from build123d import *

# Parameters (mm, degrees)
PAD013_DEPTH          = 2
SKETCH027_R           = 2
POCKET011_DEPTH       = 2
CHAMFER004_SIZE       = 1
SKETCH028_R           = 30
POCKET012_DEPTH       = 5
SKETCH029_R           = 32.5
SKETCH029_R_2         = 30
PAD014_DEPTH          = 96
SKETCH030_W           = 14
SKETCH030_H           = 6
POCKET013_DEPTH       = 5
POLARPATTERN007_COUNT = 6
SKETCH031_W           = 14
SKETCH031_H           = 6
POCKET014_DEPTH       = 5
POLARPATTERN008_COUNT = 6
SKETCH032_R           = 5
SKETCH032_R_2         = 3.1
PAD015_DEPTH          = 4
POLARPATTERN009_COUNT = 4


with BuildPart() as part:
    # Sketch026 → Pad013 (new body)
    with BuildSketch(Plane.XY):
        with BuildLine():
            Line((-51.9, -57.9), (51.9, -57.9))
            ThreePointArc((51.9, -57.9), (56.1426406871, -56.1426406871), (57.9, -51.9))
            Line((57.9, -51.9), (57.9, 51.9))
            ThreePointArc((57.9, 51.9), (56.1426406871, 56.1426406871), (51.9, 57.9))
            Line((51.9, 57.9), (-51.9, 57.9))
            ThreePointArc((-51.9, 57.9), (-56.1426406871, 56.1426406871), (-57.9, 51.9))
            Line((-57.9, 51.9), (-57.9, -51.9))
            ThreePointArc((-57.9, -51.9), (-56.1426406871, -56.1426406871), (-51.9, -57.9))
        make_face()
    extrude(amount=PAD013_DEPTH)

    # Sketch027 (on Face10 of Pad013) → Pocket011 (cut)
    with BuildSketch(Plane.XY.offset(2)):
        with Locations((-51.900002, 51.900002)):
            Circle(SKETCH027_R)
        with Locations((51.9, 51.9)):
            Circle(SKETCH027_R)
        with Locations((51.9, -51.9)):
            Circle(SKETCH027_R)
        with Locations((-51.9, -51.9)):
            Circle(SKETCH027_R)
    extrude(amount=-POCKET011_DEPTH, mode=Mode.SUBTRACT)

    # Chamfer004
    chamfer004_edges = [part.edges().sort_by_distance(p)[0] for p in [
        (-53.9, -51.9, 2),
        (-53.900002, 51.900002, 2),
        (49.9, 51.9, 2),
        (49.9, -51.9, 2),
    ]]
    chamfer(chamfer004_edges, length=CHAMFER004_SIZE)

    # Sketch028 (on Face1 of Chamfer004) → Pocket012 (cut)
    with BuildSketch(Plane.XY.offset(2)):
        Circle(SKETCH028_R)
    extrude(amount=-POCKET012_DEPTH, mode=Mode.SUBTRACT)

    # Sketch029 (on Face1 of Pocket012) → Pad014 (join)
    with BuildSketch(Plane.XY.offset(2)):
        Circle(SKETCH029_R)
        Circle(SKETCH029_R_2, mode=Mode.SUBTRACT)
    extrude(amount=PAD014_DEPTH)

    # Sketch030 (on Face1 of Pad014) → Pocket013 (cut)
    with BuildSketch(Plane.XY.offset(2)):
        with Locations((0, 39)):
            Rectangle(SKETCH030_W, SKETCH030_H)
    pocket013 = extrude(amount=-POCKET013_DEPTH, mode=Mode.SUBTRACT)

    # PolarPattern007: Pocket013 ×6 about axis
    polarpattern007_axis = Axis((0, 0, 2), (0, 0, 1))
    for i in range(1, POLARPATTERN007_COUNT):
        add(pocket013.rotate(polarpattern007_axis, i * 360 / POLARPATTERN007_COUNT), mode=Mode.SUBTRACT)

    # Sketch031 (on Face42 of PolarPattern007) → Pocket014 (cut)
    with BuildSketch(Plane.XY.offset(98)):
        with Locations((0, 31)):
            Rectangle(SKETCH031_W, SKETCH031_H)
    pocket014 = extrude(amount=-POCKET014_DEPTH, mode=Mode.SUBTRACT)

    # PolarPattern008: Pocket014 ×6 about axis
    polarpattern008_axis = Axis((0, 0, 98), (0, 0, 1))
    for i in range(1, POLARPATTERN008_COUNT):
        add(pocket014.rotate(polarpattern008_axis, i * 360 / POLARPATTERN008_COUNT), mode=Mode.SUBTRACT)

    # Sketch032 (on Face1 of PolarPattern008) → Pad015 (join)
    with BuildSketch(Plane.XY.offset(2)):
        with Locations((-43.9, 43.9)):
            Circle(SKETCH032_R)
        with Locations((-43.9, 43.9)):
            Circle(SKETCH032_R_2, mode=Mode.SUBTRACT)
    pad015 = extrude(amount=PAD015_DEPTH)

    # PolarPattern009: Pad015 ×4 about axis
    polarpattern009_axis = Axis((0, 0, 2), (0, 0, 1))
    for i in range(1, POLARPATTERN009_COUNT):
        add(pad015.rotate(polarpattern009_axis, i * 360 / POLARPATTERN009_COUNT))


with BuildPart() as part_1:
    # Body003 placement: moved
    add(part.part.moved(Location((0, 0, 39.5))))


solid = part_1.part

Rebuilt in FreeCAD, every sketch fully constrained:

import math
import FreeCAD as App
import Part
import Sketcher


def edges_at(feature, points):
    """Names of the edges that pass closest to the given points."""
    edges = feature.Shape.Edges
    near = lambda p: min(range(len(edges)), key=lambda i: edges[i].distToShape(Part.Vertex(*p))[0])
    return sorted({f"Edge{near(p) + 1}" for p in points})


def add_polygon(sketch, points):
    """Adds a closed chain of lines whose ends are joined by coincident constraints."""
    first, n = sketch.GeometryCount, len(points)
    for a, b in zip(points, points[1:] + points[:1]):
        sketch.addGeometry(Part.LineSegment(App.Vector(*a, 0), App.Vector(*b, 0)), False)
    for i in range(n):
        sketch.addConstraint(Sketcher.Constraint("Coincident", first + i, 2, first + (i + 1) % n, 1))

doc = App.newDocument("Part")
params = doc.addObject("Spreadsheet::Sheet", "Params")
for row, (alias, value) in enumerate([
    ("sketch1_radius", "6 mm"),
    ("sketch1_width", "103.8 mm"),
    ("pad1_length", "2 mm"),
    ("sketch2_diameter", "4 mm"),
    ("pocket1_length", "2 mm"),
    ("chamfer_size", "1 mm"),
    ("sketch3_diameter", "60 mm"),
    ("pocket2_length", "5 mm"),
    ("sketch4_diameter", "65 mm"),
    ("sketch4_diameter2", "60 mm"),
    ("pad2_length", "96 mm"),
    ("sketch5_width", "14 mm"),
    ("sketch5_height", "6 mm"),
    ("pocket3_length", "5 mm"),
    ("sketch6_width", "14 mm"),
    ("sketch6_height", "6 mm"),
    ("pocket4_length", "5 mm"),
    ("sketch7_diameter", "10 mm"),
    ("sketch7_diameter2", "6.2 mm"),
    ("pad3_length", "4 mm"),
], start=1):
    params.set(f"A{row}", alias)
    params.set(f"B{row}", "=" + value)
    params.setAlias(f"B{row}", alias)

body = doc.addObject("PartDesign::Body", "Body")

sketch1 = body.newObject("Sketcher::SketchObject", "Sketch")
sketch1.AttachmentSupport = (doc.getObject("XY_Plane"), [""])
sketch1.MapMode = "FlatFace"
sketch1.addGeometry(Part.LineSegment(App.Vector(-51.9, -57.9, 0), App.Vector(51.9, -57.9, 0)), False)
sketch1.addGeometry(Part.ArcOfCircle(Part.Circle(App.Vector(51.9, -51.9, 0), App.Vector(0, 0, 1), 6), math.radians(-90), math.radians(0)), False)
sketch1.addGeometry(Part.LineSegment(App.Vector(57.9, -51.9, 0), App.Vector(57.9, 51.9, 0)), False)
sketch1.addGeometry(Part.ArcOfCircle(Part.Circle(App.Vector(51.9, 51.9, 0), App.Vector(0, 0, 1), 6), math.radians(0), math.radians(90)), False)
sketch1.addGeometry(Part.LineSegment(App.Vector(51.9, 57.9, 0), App.Vector(-51.9, 57.9, 0)), False)
sketch1.addGeometry(Part.ArcOfCircle(Part.Circle(App.Vector(-51.9, 51.9, 0), App.Vector(0, 0, 1), 6), math.radians(90), math.radians(180)), False)
sketch1.addGeometry(Part.LineSegment(App.Vector(-57.9, 51.9, 0), App.Vector(-57.9, -51.9, 0)), False)
sketch1.addGeometry(Part.ArcOfCircle(Part.Circle(App.Vector(-51.9, -51.9, 0), App.Vector(0, 0, 1), 6), math.radians(180), math.radians(270)), False)
sketch1.addConstraint(Sketcher.Constraint("Tangent", 0, 2, 1, 1))
sketch1.addConstraint(Sketcher.Constraint("Tangent", 1, 2, 2, 1))
sketch1.addConstraint(Sketcher.Constraint("Tangent", 2, 2, 3, 1))
sketch1.addConstraint(Sketcher.Constraint("Tangent", 3, 2, 4, 1))
sketch1.addConstraint(Sketcher.Constraint("Tangent", 4, 2, 5, 1))
sketch1.addConstraint(Sketcher.Constraint("Tangent", 5, 2, 6, 1))
sketch1.addConstraint(Sketcher.Constraint("Tangent", 6, 2, 7, 1))
sketch1.addConstraint(Sketcher.Constraint("Tangent", 7, 2, 0, 1))
sketch1.addConstraint(Sketcher.Constraint("Horizontal", 0))
sketch1.addConstraint(Sketcher.Constraint("Vertical", 2))
sketch1.addConstraint(Sketcher.Constraint("Horizontal", 4))
sketch1.addConstraint(Sketcher.Constraint("Vertical", 6))
sketch1.addConstraint(Sketcher.Constraint("Equal", 1, 3))
sketch1.addConstraint(Sketcher.Constraint("Equal", 3, 5))
sketch1.addConstraint(Sketcher.Constraint("Equal", 5, 7))
sketch1.addConstraint(Sketcher.Constraint("Symmetric", 1, 3, 5, 3, -1, 1))
sketch1.addConstraint(Sketcher.Constraint("Equal", 4, 2))
sketch1.addConstraint(Sketcher.Constraint("Radius", 1, 6.0))
sketch1.addConstraint(Sketcher.Constraint("DistanceX", 0, 1, 0, 2, 103.8))
sketch1.setExpression("Constraints[17]", "Params.sketch1_radius")
sketch1.setExpression("Constraints[18]", "Params.sketch1_width")
pad1 = body.newObject("PartDesign::Pad", "Pad")
pad1.Profile = sketch1
pad1.setExpression("Length", "Params.pad1_length")

sketch2 = body.newObject("Sketcher::SketchObject", "Sketch001")
sketch2.AttachmentSupport = (doc.getObject("XY_Plane"), [""])
sketch2.MapMode = "FlatFace"
sketch2.AttachmentOffset = App.Placement(App.Vector(0, 0, 2), App.Rotation())
sketch2.addGeometry(Part.Circle(App.Vector(-51.900002, 51.900002, 0), App.Vector(0, 0, 1), 2), False)
sketch2.addGeometry(Part.Circle(App.Vector(51.9, 51.9, 0), App.Vector(0, 0, 1), 2), False)
sketch2.addGeometry(Part.Circle(App.Vector(51.9, -51.9, 0), App.Vector(0, 0, 1), 2), False)
sketch2.addGeometry(Part.Circle(App.Vector(-51.9, -51.9, 0), App.Vector(0, 0, 1), 2), False)
sketch2.addConstraint(Sketcher.Constraint("Equal", 0, 1))
sketch2.addConstraint(Sketcher.Constraint("Equal", 1, 2))
sketch2.addConstraint(Sketcher.Constraint("Equal", 2, 3))
sketch2.addConstraint(Sketcher.Constraint("Symmetric", 0, 3, 2, 3, -1, 1))
sketch2.addConstraint(Sketcher.Constraint("Symmetric", 1, 3, 3, 3, -1, 1))
sketch2.addConstraint(Sketcher.Constraint("Symmetric", 0, 3, 1, 3, -2))
sketch2.addConstraint(Sketcher.Constraint("Diameter", 0, 4.0))
sketch2.addConstraint(Sketcher.Constraint("DistanceX", -1, 1, 1, 3, 51.9))
sketch2.addConstraint(Sketcher.Constraint("DistanceY", -1, 1, 1, 3, 51.9))
sketch2.setExpression("Constraints[6]", "Params.sketch2_diameter")
pocket1 = body.newObject("PartDesign::Pocket", "Pocket")
pocket1.Profile = sketch2
pocket1.setExpression("Length", "Params.pocket1_length")
doc.recompute()

chamfer = body.newObject("PartDesign::Chamfer", "Chamfer")
chamfer.Base = (pocket1, edges_at(pocket1, [
    (-53.9, -51.9, 2),
    (-53.9, 51.9, 2),
    (49.9, 51.9, 2),
    (49.9, -51.9, 2),
]))
chamfer.setExpression("Size", "Params.chamfer_size")

sketch3 = body.newObject("Sketcher::SketchObject", "Sketch002")
sketch3.AttachmentSupport = (doc.getObject("XY_Plane"), [""])
sketch3.MapMode = "FlatFace"
sketch3.AttachmentOffset = App.Placement(App.Vector(0, 0, 2), App.Rotation())
sketch3.addGeometry(Part.Circle(App.Vector(0, 0, 0), App.Vector(0, 0, 1), 30), False)
sketch3.addConstraint(Sketcher.Constraint("Coincident", 0, 3, -1, 1))
sketch3.addConstraint(Sketcher.Constraint("Diameter", 0, 60.0))
sketch3.setExpression("Constraints[1]", "Params.sketch3_diameter")
pocket2 = body.newObject("PartDesign::Pocket", "Pocket001")
pocket2.Profile = sketch3
pocket2.setExpression("Length", "Params.pocket2_length")

sketch4 = body.newObject("Sketcher::SketchObject", "Sketch003")
sketch4.AttachmentSupport = (doc.getObject("XY_Plane"), [""])
sketch4.MapMode = "FlatFace"
sketch4.AttachmentOffset = App.Placement(App.Vector(0, 0, 2), App.Rotation())
sketch4.addGeometry(Part.Circle(App.Vector(0, 0, 0), App.Vector(0, 0, 1), 32.5), False)
sketch4.addGeometry(Part.Circle(App.Vector(0, 0, 0), App.Vector(0, 0, 1), 30), False)
sketch4.addConstraint(Sketcher.Constraint("Coincident", 0, 3, -1, 1))
sketch4.addConstraint(Sketcher.Constraint("Coincident", 1, 3, -1, 1))
sketch4.addConstraint(Sketcher.Constraint("Diameter", 0, 65.0))
sketch4.addConstraint(Sketcher.Constraint("Diameter", 1, 60.0))
sketch4.setExpression("Constraints[2]", "Params.sketch4_diameter")
sketch4.setExpression("Constraints[3]", "Params.sketch4_diameter2")
pad2 = body.newObject("PartDesign::Pad", "Pad001")
pad2.Profile = sketch4
pad2.setExpression("Length", "Params.pad2_length")

sketch5 = body.newObject("Sketcher::SketchObject", "Sketch004")
sketch5.AttachmentSupport = (doc.getObject("XY_Plane"), [""])
sketch5.MapMode = "FlatFace"
sketch5.AttachmentOffset = App.Placement(App.Vector(0, 0, 2), App.Rotation())
add_polygon(sketch5, [(-7, 42), (-7, 36), (7, 36), (7, 42)])
sketch5.addConstraint(Sketcher.Constraint("Vertical", 0))
sketch5.addConstraint(Sketcher.Constraint("Horizontal", 1))
sketch5.addConstraint(Sketcher.Constraint("Vertical", 2))
sketch5.addConstraint(Sketcher.Constraint("Horizontal", 3))
sketch5.addConstraint(Sketcher.Constraint("DistanceX", 1, 1, 1, 2, 14.0))
sketch5.addConstraint(Sketcher.Constraint("DistanceY", 0, 2, 0, 1, 6.0))
sketch5.addConstraint(Sketcher.Constraint("DistanceX", 0, 2, -1, 1, 7.0))
sketch5.addConstraint(Sketcher.Constraint("DistanceY", -1, 1, 0, 2, 36.0))
sketch5.setExpression("Constraints[8]", "Params.sketch5_width")
sketch5.setExpression("Constraints[9]", "Params.sketch5_height")
pocket3 = body.newObject("PartDesign::Pocket", "Pocket002")
pocket3.Profile = sketch5
pocket3.setExpression("Length", "Params.pocket3_length")
doc.recompute()

polarpattern = body.newObject("PartDesign::PolarPattern", "PolarPattern")
polarpattern.Originals = [pocket3]
polarpattern.Axis = (doc.getObject("Z_Axis"), [""])
polarpattern.Angle = 360
polarpattern.Occurrences = 6
body.Tip = polarpattern

sketch6 = body.newObject("Sketcher::SketchObject", "Sketch005")
sketch6.AttachmentSupport = (doc.getObject("XY_Plane"), [""])
sketch6.MapMode = "FlatFace"
sketch6.AttachmentOffset = App.Placement(App.Vector(0, 0, 98), App.Rotation())
add_polygon(sketch6, [(-7, 34), (-7, 28), (7, 28), (7, 34)])
sketch6.addConstraint(Sketcher.Constraint("Vertical", 0))
sketch6.addConstraint(Sketcher.Constraint("Horizontal", 1))
sketch6.addConstraint(Sketcher.Constraint("Vertical", 2))
sketch6.addConstraint(Sketcher.Constraint("Horizontal", 3))
sketch6.addConstraint(Sketcher.Constraint("DistanceX", 1, 1, 1, 2, 14.0))
sketch6.addConstraint(Sketcher.Constraint("DistanceY", 0, 2, 0, 1, 6.0))
sketch6.addConstraint(Sketcher.Constraint("DistanceX", 0, 2, -1, 1, 7.0))
sketch6.addConstraint(Sketcher.Constraint("DistanceY", -1, 1, 0, 2, 28.0))
sketch6.setExpression("Constraints[8]", "Params.sketch6_width")
sketch6.setExpression("Constraints[9]", "Params.sketch6_height")
pocket4 = body.newObject("PartDesign::Pocket", "Pocket003")
pocket4.Profile = sketch6
pocket4.setExpression("Length", "Params.pocket4_length")
doc.recompute()

polarpattern2 = body.newObject("PartDesign::PolarPattern", "PolarPattern001")
polarpattern2.Originals = [pocket4]
polarpattern2.Axis = (doc.getObject("Z_Axis"), [""])
polarpattern2.Angle = 360
polarpattern2.Occurrences = 6
body.Tip = polarpattern2

sketch7 = body.newObject("Sketcher::SketchObject", "Sketch006")
sketch7.AttachmentSupport = (doc.getObject("XY_Plane"), [""])
sketch7.MapMode = "FlatFace"
sketch7.AttachmentOffset = App.Placement(App.Vector(0, 0, 2), App.Rotation())
sketch7.addGeometry(Part.Circle(App.Vector(-43.9, 43.9, 0), App.Vector(0, 0, 1), 5), False)
sketch7.addGeometry(Part.Circle(App.Vector(-43.9, 43.9, 0), App.Vector(0, 0, 1), 3.1), False)
sketch7.addConstraint(Sketcher.Constraint("Coincident", 1, 3, 0, 3))
sketch7.addConstraint(Sketcher.Constraint("Diameter", 0, 10.0))
sketch7.addConstraint(Sketcher.Constraint("Diameter", 1, 6.2))
sketch7.addConstraint(Sketcher.Constraint("DistanceX", 0, 3, -1, 1, 43.9))
sketch7.addConstraint(Sketcher.Constraint("DistanceY", -1, 1, 0, 3, 43.9))
sketch7.setExpression("Constraints[1]", "Params.sketch7_diameter")
sketch7.setExpression("Constraints[2]", "Params.sketch7_diameter2")
pad3 = body.newObject("PartDesign::Pad", "Pad002")
pad3.Profile = sketch7
pad3.setExpression("Length", "Params.pad3_length")
doc.recompute()

polarpattern3 = body.newObject("PartDesign::PolarPattern", "PolarPattern002")
polarpattern3.Originals = [pad3]
polarpattern3.Axis = (doc.getObject("Z_Axis"), [""])
polarpattern3.Angle = 360
polarpattern3.Occurrences = 4
body.Tip = polarpattern3
body2 = doc.addObject("PartDesign::Body", "Body001")
doc.recompute()

body.Placement = App.Placement(App.Vector(0, 0, 39.5), App.Rotation(App.Vector(0, 0, 1), 0))
boolean = body2.newObject("PartDesign::Boolean", "Boolean")
boolean.Type = "Fuse"
boolean.addObjects([body])

doc.recompute()
